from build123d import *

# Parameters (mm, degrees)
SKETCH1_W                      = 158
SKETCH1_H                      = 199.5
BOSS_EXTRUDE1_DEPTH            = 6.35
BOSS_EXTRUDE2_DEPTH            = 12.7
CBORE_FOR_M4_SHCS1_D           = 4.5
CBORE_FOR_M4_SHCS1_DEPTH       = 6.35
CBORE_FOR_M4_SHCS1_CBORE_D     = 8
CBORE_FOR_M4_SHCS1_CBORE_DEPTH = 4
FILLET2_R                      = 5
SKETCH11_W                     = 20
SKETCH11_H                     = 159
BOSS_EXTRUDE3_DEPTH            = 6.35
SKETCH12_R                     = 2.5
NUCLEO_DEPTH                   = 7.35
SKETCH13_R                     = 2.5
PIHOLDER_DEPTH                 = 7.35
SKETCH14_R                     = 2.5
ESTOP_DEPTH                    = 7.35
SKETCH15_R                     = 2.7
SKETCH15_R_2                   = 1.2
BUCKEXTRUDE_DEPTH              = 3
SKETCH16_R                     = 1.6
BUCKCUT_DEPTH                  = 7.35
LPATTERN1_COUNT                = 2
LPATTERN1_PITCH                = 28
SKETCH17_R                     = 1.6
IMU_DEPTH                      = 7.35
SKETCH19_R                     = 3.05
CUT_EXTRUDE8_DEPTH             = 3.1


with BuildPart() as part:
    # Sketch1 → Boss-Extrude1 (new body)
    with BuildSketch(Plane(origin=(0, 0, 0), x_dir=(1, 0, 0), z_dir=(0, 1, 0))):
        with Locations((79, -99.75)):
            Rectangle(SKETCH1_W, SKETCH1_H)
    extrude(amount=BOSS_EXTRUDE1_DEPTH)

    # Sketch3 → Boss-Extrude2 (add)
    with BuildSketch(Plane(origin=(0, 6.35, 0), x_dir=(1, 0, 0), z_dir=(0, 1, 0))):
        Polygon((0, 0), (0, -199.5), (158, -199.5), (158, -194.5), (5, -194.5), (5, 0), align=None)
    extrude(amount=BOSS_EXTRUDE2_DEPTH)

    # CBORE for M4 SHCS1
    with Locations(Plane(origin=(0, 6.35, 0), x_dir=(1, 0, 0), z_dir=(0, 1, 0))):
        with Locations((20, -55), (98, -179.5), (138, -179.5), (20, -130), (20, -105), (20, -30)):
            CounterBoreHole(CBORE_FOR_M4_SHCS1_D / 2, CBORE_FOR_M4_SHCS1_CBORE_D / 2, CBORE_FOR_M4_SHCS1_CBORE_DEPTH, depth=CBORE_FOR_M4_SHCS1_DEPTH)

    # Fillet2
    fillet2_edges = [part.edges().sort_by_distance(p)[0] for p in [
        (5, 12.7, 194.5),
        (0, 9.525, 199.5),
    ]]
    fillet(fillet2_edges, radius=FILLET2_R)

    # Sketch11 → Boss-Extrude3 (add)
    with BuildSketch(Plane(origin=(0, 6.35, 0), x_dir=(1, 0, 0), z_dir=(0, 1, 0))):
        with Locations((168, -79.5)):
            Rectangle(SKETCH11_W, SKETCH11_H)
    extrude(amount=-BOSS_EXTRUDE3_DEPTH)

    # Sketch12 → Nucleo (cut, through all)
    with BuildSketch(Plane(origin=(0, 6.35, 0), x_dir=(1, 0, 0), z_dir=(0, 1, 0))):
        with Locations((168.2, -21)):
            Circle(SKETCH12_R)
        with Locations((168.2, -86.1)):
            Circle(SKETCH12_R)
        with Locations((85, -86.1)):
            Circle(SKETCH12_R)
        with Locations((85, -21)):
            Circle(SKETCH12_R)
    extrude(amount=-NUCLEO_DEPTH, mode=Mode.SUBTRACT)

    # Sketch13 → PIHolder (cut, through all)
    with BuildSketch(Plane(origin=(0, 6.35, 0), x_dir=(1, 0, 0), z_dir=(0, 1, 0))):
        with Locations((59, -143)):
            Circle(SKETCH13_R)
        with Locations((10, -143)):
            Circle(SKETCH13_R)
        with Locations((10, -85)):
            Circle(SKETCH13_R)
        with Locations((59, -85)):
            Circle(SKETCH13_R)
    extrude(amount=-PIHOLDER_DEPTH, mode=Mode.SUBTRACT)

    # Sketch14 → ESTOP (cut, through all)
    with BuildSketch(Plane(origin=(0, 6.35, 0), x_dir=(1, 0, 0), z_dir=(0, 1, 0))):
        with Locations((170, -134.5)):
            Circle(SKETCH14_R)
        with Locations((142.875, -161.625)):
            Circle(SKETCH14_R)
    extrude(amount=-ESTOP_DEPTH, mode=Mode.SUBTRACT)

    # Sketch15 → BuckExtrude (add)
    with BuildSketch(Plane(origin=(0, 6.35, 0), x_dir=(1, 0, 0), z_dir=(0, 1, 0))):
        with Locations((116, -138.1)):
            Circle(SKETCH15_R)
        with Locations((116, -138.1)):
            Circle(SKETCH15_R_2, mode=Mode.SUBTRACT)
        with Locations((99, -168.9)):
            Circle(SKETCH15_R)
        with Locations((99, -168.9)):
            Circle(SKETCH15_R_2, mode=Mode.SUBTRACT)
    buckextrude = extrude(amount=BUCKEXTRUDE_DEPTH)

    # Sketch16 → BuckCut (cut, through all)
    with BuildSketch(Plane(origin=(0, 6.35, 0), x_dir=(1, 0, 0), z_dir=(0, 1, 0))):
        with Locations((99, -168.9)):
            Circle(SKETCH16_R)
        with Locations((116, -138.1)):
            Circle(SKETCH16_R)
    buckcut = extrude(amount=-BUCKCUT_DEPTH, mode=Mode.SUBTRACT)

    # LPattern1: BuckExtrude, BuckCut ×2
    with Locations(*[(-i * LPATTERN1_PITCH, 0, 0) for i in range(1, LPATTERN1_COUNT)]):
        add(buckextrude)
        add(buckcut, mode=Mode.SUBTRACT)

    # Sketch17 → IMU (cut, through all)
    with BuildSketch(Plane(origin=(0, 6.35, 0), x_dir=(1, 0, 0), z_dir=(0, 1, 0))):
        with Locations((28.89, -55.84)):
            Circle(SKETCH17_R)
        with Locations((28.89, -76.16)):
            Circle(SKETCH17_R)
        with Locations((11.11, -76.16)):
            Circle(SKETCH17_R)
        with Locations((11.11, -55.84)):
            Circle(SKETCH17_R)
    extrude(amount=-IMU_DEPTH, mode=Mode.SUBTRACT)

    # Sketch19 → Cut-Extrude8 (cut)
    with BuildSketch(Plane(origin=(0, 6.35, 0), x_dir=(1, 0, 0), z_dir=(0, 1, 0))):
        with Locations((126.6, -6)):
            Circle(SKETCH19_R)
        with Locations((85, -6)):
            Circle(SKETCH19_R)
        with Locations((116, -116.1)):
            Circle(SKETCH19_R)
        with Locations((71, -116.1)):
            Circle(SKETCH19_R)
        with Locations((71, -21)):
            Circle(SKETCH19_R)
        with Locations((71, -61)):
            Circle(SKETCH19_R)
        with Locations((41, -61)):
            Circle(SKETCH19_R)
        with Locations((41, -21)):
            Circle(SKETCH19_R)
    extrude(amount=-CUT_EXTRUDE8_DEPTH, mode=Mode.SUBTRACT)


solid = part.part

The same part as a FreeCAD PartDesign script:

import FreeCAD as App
import Part
import Sketcher

V = App.Vector
Q = App.Units.Quantity


def edges_at(feature, points):
    """Names of the edges that pass closest to the given points."""
    edges = feature.Shape.Edges
    near = lambda p: min(range(len(edges)), key=lambda i: edges[i].distToShape(Part.Vertex(*p))[0])
    return sorted({f"Edge{near(p) + 1}" for p in points})

doc = App.newDocument("Part")
body = doc.addObject("PartDesign::Body", "Body")

# Sketch on XZ plane
sketch1 = body.newObject("Sketcher::SketchObject", "Sketch")
sketch1.AttachmentSupport = (doc.getObject("XZ_Plane"), [""])
sketch1.MapMode = "FlatFace"
sketch1.addGeometry([
    Part.LineSegment(V(0, 0, 0), V(0, 200, 0)),
    Part.LineSegment(V(0, 200, 0), V(158, 200, 0)),
    Part.LineSegment(V(158, 200, 0), V(158, 0, 0)),
    Part.LineSegment(V(158, 0, 0), V(0, 0, 0)),
], False)
sketch1.addConstraint([
    Sketcher.Constraint("Coincident", 0, 2, 1, 1),
    Sketcher.Constraint("Coincident", 1, 2, 2, 1),
    Sketcher.Constraint("Coincident", 2, 2, 3, 1),
    Sketcher.Constraint("Coincident", 3, 2, 0, 1),
    Sketcher.Constraint("Vertical", 0),
    Sketcher.Constraint("Horizontal", 1),
    Sketcher.Constraint("Vertical", 2),
    Sketcher.Constraint("Horizontal", 3),
    Sketcher.Constraint("Coincident", 3, 2, -1, 1),
    Sketcher.Constraint("DistanceX", 1, 1, 1, 2, Q("158 mm")),
    Sketcher.Constraint("DistanceY", 0, 1, 0, 2, Q("199.5 mm")),
])
pad1 = body.newObject("PartDesign::Pad", "Pad")
pad1.Profile = sketch1
pad1.Length = 6.35
pad1.Reversed = True

# Sketch on XZ plane
sketch2 = body.newObject("Sketcher::SketchObject", "Sketch001")
sketch2.AttachmentSupport = (doc.getObject("XZ_Plane"), [""])
sketch2.MapMode = "FlatFace"
sketch2.AttachmentOffset = App.Placement(V(0, 0, -6.35), App.Rotation())
sketch2.addGeometry([
    Part.LineSegment(V(0, 0, 0), V(0, 200, 0)),  # 0
    Part.LineSegment(V(0, 200, 0), V(158, 200, 0)),  # 1
    Part.LineSegment(V(158, 200, 0), V(158, 194, 0)),  # 2
    Part.LineSegment(V(158, 194, 0), V(5, 194, 0)),  # 3
    Part.LineSegment(V(5, 194, 0), V(5, 0, 0)),  # 4
    Part.LineSegment(V(5, 0, 0), V(0, 0, 0)),  # 5
], False)
sketch2.addConstraint([
    Sketcher.Constraint("Coincident", 0, 2, 1, 1),
    Sketcher.Constraint("Coincident", 1, 2, 2, 1),
    Sketcher.Constraint("Coincident", 2, 2, 3, 1),
    Sketcher.Constraint("Coincident", 3, 2, 4, 1),
    Sketcher.Constraint("Coincident", 4, 2, 5, 1),
    Sketcher.Constraint("Coincident", 5, 2, 0, 1),
    Sketcher.Constraint("Vertical", 0),
    Sketcher.Constraint("Horizontal", 1),
    Sketcher.Constraint("Vertical", 2),
    Sketcher.Constraint("Horizontal", 3),
    Sketcher.Constraint("Vertical", 4),
    Sketcher.Constraint("Horizontal", 5),
    Sketcher.Constraint("Coincident", 5, 2, -1, 1),
    Sketcher.Constraint("Equal", 5, 2),
    Sketcher.Constraint("DistanceX", 1, 1, 1, 2, Q("158 mm")),
    Sketcher.Constraint("DistanceX", 3, 2, 3, 1, Q("153 mm")),
    Sketcher.Constraint("DistanceY", 0, 1, 0, 2, Q("199.5 mm")),
])
pad2 = body.newObject("PartDesign::Pad", "Pad001")
pad2.Profile = sketch2
pad2.Length = 12.7
pad2.Reversed = True

# Sketch on XZ plane
sketch3 = body.newObject("Sketcher::SketchObject", "Sketch002")
sketch3.AttachmentSupport = (doc.getObject("XZ_Plane"), [""])
sketch3.MapMode = "FlatFace"
sketch3.AttachmentOffset = App.Placement(V(0, 0, -6.35), App.Rotation())
sketch3.addGeometry([
    Part.Circle(V(20, 55, 0), V(0, 0, 1), 2.2),  # 0
    Part.Circle(V(98, 179.5, 0), V(0, 0, 1), 2.2),  # 1
    Part.Circle(V(138, 179.5, 0), V(0, 0, 1), 2.2),  # 2
    Part.Circle(V(20, 130, 0), V(0, 0, 1), 2.2),  # 3
    Part.Circle(V(20, 105, 0), V(0, 0, 1), 2.2),  # 4
    Part.Circle(V(20, 30, 0), V(0, 0, 1), 2.2),  # 5
], False)
sketch3.addConstraint([
    Sketcher.Constraint("Equal", 0, 1),
    Sketcher.Constraint("Equal", 1, 2),
    Sketcher.Constraint("Equal", 2, 3),
    Sketcher.Constraint("Equal", 3, 4),
    Sketcher.Constraint("Equal", 4, 5),
    Sketcher.Constraint("Horizontal", 1, 3, 2, 3),
    Sketcher.Constraint("Vertical", 0, 3, 3, 3),
    Sketcher.Constraint("Vertical", 3, 3, 4, 3),
    Sketcher.Constraint("Vertical", 4, 3, 5, 3),
    Sketcher.Constraint("Diameter", 0, Q("4.5 mm")),
    Sketcher.Constraint("DistanceX", -1, 1, 0, 3, Q("20 mm")),
    Sketcher.Constraint("DistanceY", -1, 1, 0, 3, Q("55 mm")),
    Sketcher.Constraint("DistanceX", -1, 1, 1, 3, Q("98 mm")),
    Sketcher.Constraint("DistanceX", -1, 1, 2, 3, Q("138 mm")),
    Sketcher.Constraint("DistanceY", -1, 1, 3, 3, Q("130 mm")),
    Sketcher.Constraint("DistanceY", -1, 1, 4, 3, Q("105 mm")),
    Sketcher.Constraint("DistanceY", -1, 1, 5, 3, Q("30 mm")),
    Sketcher.Constraint("DistanceY", -1, 1, 1, 3, Q("179.5 mm")),
])
doc.recompute()
hole = body.newObject("PartDesign::Hole", "Hole")
hole.Profile = sketch3
hole.ThreadType = "None"
hole.Diameter = 4.5
hole.DepthType = "Dimension"
hole.Depth = 6.35
hole.DrillPoint = "Flat"
hole.HoleCutType = "Counterbore"
hole.HoleCutDiameter = 8
hole.HoleCutDepth = 4
hole.Reversed = True
doc.recompute()

fillet = body.newObject("PartDesign::Fillet", "Fillet")
fillet.Base = (hole, edges_at(hole, [(5, 12.7, 194.5), (0, 9.525, 199.5)]))
fillet.Radius = 5

# Sketch on XZ plane
sketch4 = body.newObject("Sketcher::SketchObject", "Sketch003")
sketch4.AttachmentSupport = (doc.getObject("XZ_Plane"), [""])
sketch4.MapMode = "FlatFace"
sketch4.AttachmentOffset = App.Placement(V(0, 0, -6.35), App.Rotation())
sketch4.addGeometry([
    Part.LineSegment(V(158, 0, 0), V(158, 159, 0)),
    Part.LineSegment(V(158, 159, 0), V(178, 159, 0)),
    Part.LineSegment(V(178, 159, 0), V(178, 0, 0)),
    Part.LineSegment(V(178, 0, 0), V(158, 0, 0)),
], False)
sketch4.addConstraint([
    Sketcher.Constraint("Coincident", 0, 2, 1, 1),
    Sketcher.Constraint("Coincident", 1, 2, 2, 1),
    Sketcher.Constraint("Coincident", 2, 2, 3, 1),
    Sketcher.Constraint("Coincident", 3, 2, 0, 1),
    Sketcher.Constraint("Vertical", 0),
    Sketcher.Constraint("Horizontal", 1),
    Sketcher.Constraint("Vertical", 2),
    Sketcher.Constraint("Horizontal", 3),
    Sketcher.Constraint("PointOnObject", 2, 2, -1),
    Sketcher.Constraint("DistanceX", 1, 1, 1, 2, Q("20 mm")),
    Sketcher.Constraint("DistanceY", 0, 1, 0, 2, Q("159 mm")),
    Sketcher.Constraint("DistanceX", -1, 1, 0, 2, Q("158 mm")),
])
pad3 = body.newObject("PartDesign::Pad", "Pad002")
pad3.Profile = sketch4
pad3.Length = 6.35

# Sketch on XZ plane
sketch5 = body.newObject("Sketcher::SketchObject", "Sketch004")
sketch5.AttachmentSupport = (doc.getObject("XZ_Plane"), [""])
sketch5.MapMode = "FlatFace"
sketch5.AttachmentOffset = App.Placement(V(0, 0, -6.35), App.Rotation())
sketch5.addGeometry([
    Part.Circle(V(168.2, 21, 0), V(0, 0, 1), 2.5),
    Part.Circle(V(168.2, 86.1, 0), V(0, 0, 1), 2.5),
    Part.Circle(V(85, 86.1, 0), V(0, 0, 1), 2.5),
    Part.Circle(V(85, 21, 0), V(0, 0, 1), 2.5),
], False)
sketch5.addConstraint([
    Sketcher.Constraint("Equal", 0, 1),
    Sketcher.Constraint("Equal", 1, 2),
    Sketcher.Constraint("Equal", 2, 3),
    Sketcher.Constraint("Horizontal", 1, 3, 2, 3),
    Sketcher.Constraint("Horizontal", 0, 3, 3, 3),
    Sketcher.Constraint("Vertical", 0, 3, 1, 3),
    Sketcher.Constraint("Vertical", 2, 3, 3, 3),
    Sketcher.Constraint("Diameter", 0, Q("5 mm")),
    Sketcher.Constraint("DistanceY", -1, 1, 0, 3, Q("21 mm")),
    Sketcher.Constraint("DistanceX", -1, 1, 2, 3, Q("85 mm")),
    Sketcher.Constraint("DistanceX", -1, 1, 0, 3, Q("168.2 mm")),
    Sketcher.Constraint("DistanceY", -1, 1, 1, 3, Q("86.1 mm")),
])
pocket1 = body.newObject("PartDesign::Pocket", "Pocket")
pocket1.Profile = sketch5
pocket1.Type = "ThroughAll"
pocket1.Reversed = True

# Sketch on XZ plane
sketch6 = body.newObject("Sketcher::SketchObject", "Sketch005")
sketch6.AttachmentSupport = (doc.getObject("XZ_Plane"), [""])
sketch6.MapMode = "FlatFace"
sketch6.AttachmentOffset = App.Placement(V(0, 0, -6.35), App.Rotation())
sketch6.addGeometry([
    Part.Circle(V(59, 143, 0), V(0, 0, 1), 2.5),
    Part.Circle(V(10, 143, 0), V(0, 0, 1), 2.5),
    Part.Circle(V(10, 85, 0), V(0, 0, 1), 2.5),
    Part.Circle(V(59, 85, 0), V(0, 0, 1), 2.5),
], False)
sketch6.addConstraint([
    Sketcher.Constraint("Equal", 0, 1),
    Sketcher.Constraint("Equal", 1, 2),
    Sketcher.Constraint("Equal", 2, 3),
    Sketcher.Constraint("Horizontal", 0, 3, 1, 3),
    Sketcher.Constraint("Horizontal", 2, 3, 3, 3),
    Sketcher.Constraint("Vertical", 1, 3, 2, 3),
    Sketcher.Constraint("Vertical", 0, 3, 3, 3),
    Sketcher.Constraint("Diameter", 0, Q("5 mm")),
    Sketcher.Constraint("DistanceX", -1, 1, 0, 3, Q("59 mm")),
    Sketcher.Constraint("DistanceY", -1, 1, 0, 3, Q("143 mm")),
    Sketcher.Constraint("DistanceX", -1, 1, 1, 3, Q("10 mm")),
    Sketcher.Constraint("DistanceY", -1, 1, 2, 3, Q("85 mm")),
])
pocket2 = body.newObject("PartDesign::Pocket", "Pocket001")
pocket2.Profile = sketch6
pocket2.Type = "ThroughAll"
pocket2.Reversed = True

# Sketch on XZ plane
sketch7 = body.newObject("Sketcher::SketchObject", "Sketch006")
sketch7.AttachmentSupport = (doc.getObject("XZ_Plane"), [""])
sketch7.MapMode = "FlatFace"
sketch7.AttachmentOffset = App.Placement(V(0, 0, -6.35), App.Rotation())
sketch7.addGeometry([
    Part.Circle(V(170, 134.5, 0), V(0, 0, 1), 2.5),
    Part.Circle(V(142.9, 161.6, 0), V(0, 0, 1), 2.5),
], False)
sketch7.addConstraint([
    Sketcher.Constraint("Equal", 0, 1),
    Sketcher.Constraint("Diameter", 0, Q("5 mm")),
    Sketcher.Constraint("DistanceX", -1, 1, 0, 3, Q("170 mm")),
    Sketcher.Constraint("DistanceY", -1, 1, 0, 3, Q("134.5 mm")),
    Sketcher.Constraint("DistanceX", -1, 1, 1, 3, Q("142.875 mm")),
    Sketcher.Constraint("DistanceY", -1, 1, 1, 3, Q("161.625 mm")),
])
pocket3 = body.newObject("PartDesign::Pocket", "Pocket002")
pocket3.Profile = sketch7
pocket3.Type = "ThroughAll"
pocket3.Reversed = True

# Sketch on XZ plane
sketch8 = body.newObject("Sketcher::SketchObject", "Sketch007")
sketch8.AttachmentSupport = (doc.getObject("XZ_Plane"), [""])
sketch8.MapMode = "FlatFace"
sketch8.AttachmentOffset = App.Placement(V(0, 0, -6.35), App.Rotation())
sketch8.addGeometry([
    Part.Circle(V(116, 138.1, 0), V(0, 0, 1), 2.7),
    Part.Circle(V(116, 138.1, 0), V(0, 0, 1), 1.2),
    Part.Circle(V(99, 168.9, 0), V(0, 0, 1), 2.7),
    Part.Circle(V(99, 168.9, 0), V(0, 0, 1), 1.2),
], False)
sketch8.addConstraint([
    Sketcher.Constraint("Coincident", 1, 3, 0, 3),
    Sketcher.Constraint("Coincident", 3, 3, 2, 3),
    Sketcher.Constraint("Equal", 0, 2),
    Sketcher.Constraint("Equal", 1, 3),
    Sketcher.Constraint("Diameter", 0, Q("5.4 mm")),
    Sketcher.Constraint("Diameter", 1, Q("2.4 mm")),
    Sketcher.Constraint("DistanceX", -1, 1, 0, 3, Q("116 mm")),
    Sketcher.Constraint("DistanceX", -1, 1, 2, 3, Q("99 mm")),
    Sketcher.Constraint("DistanceY", -1, 1, 0, 3, Q("138.1 mm")),
    Sketcher.Constraint("DistanceY", -1, 1, 2, 3, Q("168.9 mm")),
])
pad4 = body.newObject("PartDesign::Pad", "Pad003")
pad4.Profile = sketch8
pad4.Length = 3
pad4.Reversed = True

# Sketch on XZ plane
sketch9 = body.newObject("Sketcher::SketchObject", "Sketch008")
sketch9.AttachmentSupport = (doc.getObject("XZ_Plane"), [""])
sketch9.MapMode = "FlatFace"
sketch9.AttachmentOffset = App.Placement(V(0, 0, -6.35), App.Rotation())
sketch9.addGeometry([
    Part.Circle(V(99, 168.9, 0), V(0, 0, 1), 1.6),
    Part.Circle(V(116, 138.1, 0), V(0, 0, 1), 1.6),
], False)
sketch9.addConstraint([
    Sketcher.Constraint("Equal", 0, 1),
    Sketcher.Constraint("Diameter", 0, Q("3.2 mm")),
    Sketcher.Constraint("DistanceX", -1, 1, 0, 3, Q("99 mm")),
    Sketcher.Constraint("DistanceX", -1, 1, 1, 3, Q("116 mm")),
    Sketcher.Constraint("DistanceY", -1, 1, 0, 3, Q("168.9 mm")),
    Sketcher.Constraint("DistanceY", -1, 1, 1, 3, Q("138.1 mm")),
])
pocket4 = body.newObject("PartDesign::Pocket", "Pocket003")
pocket4.Profile = sketch9
pocket4.Type = "ThroughAll"
pocket4.Reversed = True
doc.recompute()

linearpattern = body.newObject("PartDesign::LinearPattern", "LinearPattern")
linearpattern.Originals = [pad4, pocket4]
linearpattern.Direction = (doc.getObject("X_Axis"), [""])
linearpattern.Mode = "offset"
linearpattern.Offset = 28
linearpattern.Occurrences = 2
linearpattern.Reversed = True
body.Tip = linearpattern

# Sketch on XZ plane
sketch10 = body.newObject("Sketcher::SketchObject", "Sketch009")
sketch10.AttachmentSupport = (doc.getObject("XZ_Plane"), [""])
sketch10.MapMode = "FlatFace"
sketch10.AttachmentOffset = App.Placement(V(0, 0, -6.35), App.Rotation())
sketch10.addGeometry([
    Part.Circle(V(28.9, 55.8, 0), V(0, 0, 1), 1.6),
    Part.Circle(V(28.9, 76.2, 0), V(0, 0, 1), 1.6),
    Part.Circle(V(11.1, 76.2, 0), V(0, 0, 1), 1.6),
    Part.Circle(V(11.1, 55.8, 0), V(0, 0, 1), 1.6),
], False)
sketch10.addConstraint([
    Sketcher.Constraint("Equal", 0, 1),
    Sketcher.Constraint("Equal", 1, 2),
    Sketcher.Constraint("Equal", 2, 3),
    Sketcher.Constraint("Horizontal", 1, 3, 2, 3),
    Sketcher.Constraint("Horizontal", 0, 3, 3, 3),
    Sketcher.Constraint("Vertical", 0, 3, 1, 3),
    Sketcher.Constraint("Vertical", 2, 3, 3, 3),
    Sketcher.Constraint("Diameter", 0, Q("3.2 mm")),
    Sketcher.Constraint("DistanceX", -1, 1, 0, 3, Q("28.89 mm")),
    Sketcher.Constraint("DistanceY", -1, 1, 0, 3, Q("55.84 mm")),
    Sketcher.Constraint("DistanceY", -1, 1, 1, 3, Q("76.16 mm")),
    Sketcher.Constraint("DistanceX", -1, 1, 2, 3, Q("11.11 mm")),
])
pocket5 = body.newObject("PartDesign::Pocket", "Pocket004")
pocket5.Profile = sketch10
pocket5.Type = "ThroughAll"
pocket5.Reversed = True

# Sketch on XZ plane
sketch11 = body.newObject("Sketcher::SketchObject", "Sketch010")
sketch11.AttachmentSupport = (doc.getObject("XZ_Plane"), [""])
sketch11.MapMode = "FlatFace"
sketch11.AttachmentOffset = App.Placement(V(0, 0, -6.35), App.Rotation())
sketch11.addGeometry([
    Part.Circle(V(126.6, 6, 0), V(0, 0, 1), 3),  # 0
    Part.Circle(V(85, 6, 0), V(0, 0, 1), 3),  # 1
    Part.Circle(V(116, 116.1, 0), V(0, 0, 1), 3),  # 2
    Part.Circle(V(71, 116.1, 0), V(0, 0, 1), 3),  # 3
    Part.Circle(V(71, 21, 0), V(0, 0, 1), 3),  # 4
    Part.Circle(V(71, 61, 0), V(0, 0, 1), 3),  # 5
    Part.Circle(V(41, 61, 0), V(0, 0, 1), 3),  # 6
    Part.Circle(V(41, 21, 0), V(0, 0, 1), 3),  # 7
], False)
sketch11.addConstraint([
    Sketcher.Constraint("Equal", 0, 1),
    Sketcher.Constraint("Equal", 1, 2),
    Sketcher.Constraint("Equal", 2, 3),
    Sketcher.Constraint("Equal", 3, 4),
    Sketcher.Constraint("Equal", 4, 5),
    Sketcher.Constraint("Equal", 5, 6),
    Sketcher.Constraint("Equal", 6, 7),
    Sketcher.Constraint("Horizontal", 0, 3, 1, 3),
    Sketcher.Constraint("Horizontal", 2, 3, 3, 3),
    Sketcher.Constraint("Horizontal", 5, 3, 6, 3),
    Sketcher.Constraint("Horizontal", 4, 3, 7, 3),
    Sketcher.Constraint("Vertical", 3, 3, 4, 3),
    Sketcher.Constraint("Vertical", 4, 3, 5, 3),
    Sketcher.Constraint("Vertical", 6, 3, 7, 3),
    Sketcher.Constraint("Diameter", 0, Q("6.1 mm")),
    Sketcher.Constraint("DistanceY", -1, 1, 0, 3, Q("6 mm")),
    Sketcher.Constraint("DistanceX", -1, 1, 1, 3, Q("85 mm")),
    Sketcher.Constraint("DistanceX", -1, 1, 2, 3, Q("116 mm")),
    Sketcher.Constraint("DistanceX", -1, 1, 3, 3, Q("71 mm")),
    Sketcher.Constraint("DistanceY", -1, 1, 4, 3, Q("21 mm")),
    Sketcher.Constraint("DistanceY", -1, 1, 5, 3, Q("61 mm")),
    Sketcher.Constraint("DistanceX", -1, 1, 6, 3, Q("41 mm")),
    Sketcher.Constraint("DistanceX", -1, 1, 0, 3, Q("126.6 mm")),
    Sketcher.Constraint("DistanceY", -1, 1, 2, 3, Q("116.1 mm")),
])
pocket6 = body.newObject("PartDesign::Pocket", "Pocket005")
pocket6.Profile = sketch11
pocket6.Length = 3.1
pocket6.Reversed = True

doc.recompute()
